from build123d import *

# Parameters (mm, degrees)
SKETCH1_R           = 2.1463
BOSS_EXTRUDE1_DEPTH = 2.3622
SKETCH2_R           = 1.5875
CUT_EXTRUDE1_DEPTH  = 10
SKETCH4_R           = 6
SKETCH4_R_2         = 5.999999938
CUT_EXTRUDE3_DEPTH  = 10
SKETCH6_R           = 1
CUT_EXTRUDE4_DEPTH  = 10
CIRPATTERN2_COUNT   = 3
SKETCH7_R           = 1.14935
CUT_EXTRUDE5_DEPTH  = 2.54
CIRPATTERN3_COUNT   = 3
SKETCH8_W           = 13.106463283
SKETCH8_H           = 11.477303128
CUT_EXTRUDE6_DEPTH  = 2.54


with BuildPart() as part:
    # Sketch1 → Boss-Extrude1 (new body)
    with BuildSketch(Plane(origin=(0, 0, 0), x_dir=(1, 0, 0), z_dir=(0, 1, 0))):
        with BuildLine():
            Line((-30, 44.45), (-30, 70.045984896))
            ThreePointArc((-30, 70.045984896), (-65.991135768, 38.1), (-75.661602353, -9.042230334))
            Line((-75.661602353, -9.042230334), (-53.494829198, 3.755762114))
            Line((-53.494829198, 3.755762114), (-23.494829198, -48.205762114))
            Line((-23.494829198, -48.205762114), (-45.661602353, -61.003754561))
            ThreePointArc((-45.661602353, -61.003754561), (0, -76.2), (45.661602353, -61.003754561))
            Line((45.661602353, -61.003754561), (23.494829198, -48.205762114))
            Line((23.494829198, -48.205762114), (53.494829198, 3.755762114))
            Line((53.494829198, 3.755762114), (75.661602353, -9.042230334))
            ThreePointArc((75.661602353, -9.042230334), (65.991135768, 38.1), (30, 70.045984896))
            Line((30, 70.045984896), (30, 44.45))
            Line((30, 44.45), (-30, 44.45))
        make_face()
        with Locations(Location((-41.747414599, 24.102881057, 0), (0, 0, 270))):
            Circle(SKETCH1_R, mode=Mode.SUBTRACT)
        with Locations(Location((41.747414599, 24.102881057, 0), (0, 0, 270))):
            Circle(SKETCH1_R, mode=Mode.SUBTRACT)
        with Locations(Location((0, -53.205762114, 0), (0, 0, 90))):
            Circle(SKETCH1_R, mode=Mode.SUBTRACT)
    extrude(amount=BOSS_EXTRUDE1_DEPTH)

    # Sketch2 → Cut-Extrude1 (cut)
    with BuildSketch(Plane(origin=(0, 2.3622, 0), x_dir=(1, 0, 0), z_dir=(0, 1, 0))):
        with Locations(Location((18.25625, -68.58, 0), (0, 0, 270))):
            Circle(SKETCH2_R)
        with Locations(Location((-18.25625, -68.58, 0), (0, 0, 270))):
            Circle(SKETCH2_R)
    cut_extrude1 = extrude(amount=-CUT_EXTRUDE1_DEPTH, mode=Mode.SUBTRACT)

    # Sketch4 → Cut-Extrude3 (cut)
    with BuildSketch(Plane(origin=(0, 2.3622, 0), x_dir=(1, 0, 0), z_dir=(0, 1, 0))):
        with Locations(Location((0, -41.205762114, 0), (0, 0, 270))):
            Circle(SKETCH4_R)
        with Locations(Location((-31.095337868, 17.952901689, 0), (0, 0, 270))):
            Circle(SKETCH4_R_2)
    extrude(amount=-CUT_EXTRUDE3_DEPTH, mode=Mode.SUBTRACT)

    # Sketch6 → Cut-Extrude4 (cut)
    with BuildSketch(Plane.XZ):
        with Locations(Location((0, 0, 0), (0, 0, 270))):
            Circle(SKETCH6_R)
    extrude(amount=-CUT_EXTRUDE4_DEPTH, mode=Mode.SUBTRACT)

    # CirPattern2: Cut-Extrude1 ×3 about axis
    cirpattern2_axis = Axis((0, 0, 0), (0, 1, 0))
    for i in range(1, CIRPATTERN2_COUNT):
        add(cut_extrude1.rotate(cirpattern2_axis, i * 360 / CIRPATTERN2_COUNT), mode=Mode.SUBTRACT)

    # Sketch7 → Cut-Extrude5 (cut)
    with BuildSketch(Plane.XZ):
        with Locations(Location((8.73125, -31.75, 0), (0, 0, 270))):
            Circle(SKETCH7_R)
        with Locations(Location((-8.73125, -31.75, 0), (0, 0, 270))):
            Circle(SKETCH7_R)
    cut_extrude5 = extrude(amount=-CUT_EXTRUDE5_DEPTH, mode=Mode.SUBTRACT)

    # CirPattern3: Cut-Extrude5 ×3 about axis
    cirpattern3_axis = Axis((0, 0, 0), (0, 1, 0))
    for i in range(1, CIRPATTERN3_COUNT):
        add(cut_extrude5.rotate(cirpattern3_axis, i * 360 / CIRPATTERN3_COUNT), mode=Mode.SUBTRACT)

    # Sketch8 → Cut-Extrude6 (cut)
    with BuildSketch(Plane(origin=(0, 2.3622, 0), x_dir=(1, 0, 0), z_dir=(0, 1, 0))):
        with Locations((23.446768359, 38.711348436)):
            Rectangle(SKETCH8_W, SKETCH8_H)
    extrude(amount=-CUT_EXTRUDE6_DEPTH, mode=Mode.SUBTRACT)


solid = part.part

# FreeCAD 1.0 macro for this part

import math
import FreeCAD as App
import Part
import Sketcher
from FreeCAD import Vector
Q = App.Units.Quantity

doc = App.newDocument("Part")
body = doc.addObject("PartDesign::Body", "Body")

sketch1 = body.newObject("Sketcher::SketchObject", "Sketch")
sketch1.AttachmentSupport = (doc.getObject("XZ_Plane"), [""])
sketch1.MapMode = "FlatFace"
sketch1.addGeometry([
    Part.LineSegment(Vector(-30, -44.5, 0), Vector(-30, -70, 0)),
    Part.ArcOfCircle(Part.Circle(Vector(0, 0, 0), Vector(0, 0, 1), 76.2), math.radians(173), math.radians(247)),
    Part.LineSegment(Vector(-75.7, 9, 0), Vector(-53.5, -3.8, 0)),
    Part.LineSegment(Vector(-53.5, -3.8, 0), Vector(-23.5, 48.2, 0)),
    Part.LineSegment(Vector(-23.5, 48.2, 0), Vector(-45.7, 61, 0)),
    Part.ArcOfCircle(Part.Circle(Vector(0, 0, 0), Vector(0, 0, 1), 76.2), math.radians(53), math.radians(127)),
    Part.LineSegment(Vector(45.7, 61, 0), Vector(23.5, 48.2, 0)),
    Part.LineSegment(Vector(23.5, 48.2, 0), Vector(53.5, -3.8, 0)),
    Part.LineSegment(Vector(53.5, -3.8, 0), Vector(75.7, 9, 0)),
    Part.ArcOfCircle(Part.Circle(Vector(0, 0, 0), Vector(0, 0, 1), 76.2), math.radians(-67), math.radians(7)),
    Part.LineSegment(Vector(30, -70, 0), Vector(30, -44.5, 0)),
    Part.LineSegment(Vector(30, -44.5, 0), Vector(-30, -44.5, 0)),
    Part.Circle(Vector(0, 53.2, 0), Vector(0, 0, 1), 2.1),
    Part.Circle(Vector(-41.7, -24.1, 0), Vector(0, 0, 1), 2.1),
    Part.Circle(Vector(41.7, -24.1, 0), Vector(0, 0, 1), 2.1),
], False)
sketch1.addConstraint([
    Sketcher.Constraint("Coincident", 0, 2, 1, 2),
    Sketcher.Constraint("Coincident", 1, 1, 2, 1),
    Sketcher.Constraint("Coincident", 2, 2, 3, 1),
    Sketcher.Constraint("Coincident", 3, 2, 4, 1),
    Sketcher.Constraint("Coincident", 4, 2, 5, 2),
    Sketcher.Constraint("Coincident", 5, 1, 6, 1),
    Sketcher.Constraint("Coincident", 6, 2, 7, 1),
    Sketcher.Constraint("Coincident", 7, 2, 8, 1),
    Sketcher.Constraint("Coincident", 8, 2, 9, 2),
    Sketcher.Constraint("Coincident", 9, 1, 10, 1),
    Sketcher.Constraint("Coincident", 10, 2, 11, 1),
    Sketcher.Constraint("Coincident", 11, 2, 0, 1),
    Sketcher.Constraint("Vertical", 0),
    Sketcher.Constraint("Vertical", 10),
    Sketcher.Constraint("Horizontal", 11),
    Sketcher.Constraint("Coincident", 1, 3, -1, 1),
    Sketcher.Constraint("Coincident", 5, 3, -1, 1),
    Sketcher.Constraint("Coincident", 9, 3, -1, 1),
    Sketcher.Constraint("Equal", 1, 5),
    Sketcher.Constraint("Equal", 5, 9),
    Sketcher.Constraint("Equal", 12, 13),
    Sketcher.Constraint("Equal", 13, 14),
    Sketcher.Constraint("Symmetric", 13, 3, 14, 3, -2),
    Sketcher.Constraint("Symmetric", 3, 2, 6, 2, -2),
    Sketcher.Constraint("Symmetric", 2, 2, 7, 2, -2),
    Sketcher.Constraint("PointOnObject", 12, 3, -2),
    Sketcher.Constraint("Perpendicular", 2, 3),
    Sketcher.Constraint("Perpendicular", 3, 4),
    Sketcher.Constraint("Perpendicular", 6, 7),
    Sketcher.Constraint("Perpendicular", 7, 8),
    Sketcher.Constraint("Horizontal", 0, 2, 9, 1),
    Sketcher.Constraint("Equal", 2, 4),
    Sketcher.Constraint("Radius", 1, Q("3 in")),
    Sketcher.Constraint("Diameter", 12, Q("0.169 in")),
    Sketcher.Constraint("Angle", 2, Q("-30 deg")),
    Sketcher.Constraint("DistanceY", 10, 2, -1, 1, Q("1.75 in")),
    Sketcher.Constraint("DistanceX", 11, 2, 11, 1, Q("60 mm")),
    Sketcher.Constraint("Distance", 3, Q("60 mm")),
    Sketcher.Constraint("DistanceY", 3, 2, 12, 3, Q("5 mm")),
    Sketcher.Constraint("DistanceY", 13, 3, -1, 1, Q("24.102881 mm")),
    Sketcher.Constraint("DistanceX", 2, 2, -1, 1, Q("53.494829 mm")),
    Sketcher.Constraint("DistanceX", 13, 3, 14, 3, Q("83.494829 mm")),
])
pad1 = body.newObject("PartDesign::Pad", "Pad")
pad1.Profile = sketch1
pad1.Length = Q("0.093 in")
pad1.Reversed = True

sketch2 = body.newObject("Sketcher::SketchObject", "Sketch001")
sketch2.AttachmentSupport = (doc.getObject("XZ_Plane"), [""])
sketch2.MapMode = "FlatFace"
sketch2.AttachmentOffset = App.Placement(Vector(0, 0, -0.093 * 25.4), App.Rotation())
sketch2.addGeometry([
    Part.Circle(Vector(18.3, 68.6, 0), Vector(0, 0, 1), 1.6),
    Part.Circle(Vector(-18.3, 68.6, 0), Vector(0, 0, 1), 1.6),
], False)
sketch2.addConstraint([
    Sketcher.Constraint("Equal", 0, 1),
    Sketcher.Constraint("Symmetric", 0, 3, 1, 3, -2),
    Sketcher.Constraint("Diameter", 0, Q("0.125 in")),
    Sketcher.Constraint("DistanceY", -1, 1, 0, 3, Q("2.7 in")),
    Sketcher.Constraint("DistanceX", -1, 1, 0, 3, Q("0.71875 in")),
])
pocket1 = body.newObject("PartDesign::Pocket", "Pocket")
pocket1.Profile = sketch2
pocket1.Length = 10
pocket1.Reversed = True

sketch3 = body.newObject("Sketcher::SketchObject", "Sketch002")
sketch3.AttachmentSupport = (doc.getObject("XZ_Plane"), [""])
sketch3.MapMode = "FlatFace"
sketch3.AttachmentOffset = App.Placement(Vector(0, 0, -0.093 * 25.4), App.Rotation())
sketch3.addGeometry([
    Part.Circle(Vector(0, 41, 0), Vector(0, 0, 1), 6),
    Part.Circle(Vector(-31, -18, 0), Vector(0, 0, 1), 6),
], False)
sketch3.addConstraint([
    Sketcher.Constraint("Equal", 0, 1),
    Sketcher.Constraint("PointOnObject", 0, 3, -2),
    Sketcher.Constraint("Diameter", 0, Q("12 mm")),
    Sketcher.Constraint("DistanceY", 1, 3, -1, 1, Q("17.952902 mm")),
    Sketcher.Constraint("DistanceY", -1, 1, 0, 3, Q("41.205762 mm")),
    Sketcher.Constraint("DistanceX", 1, 3, -1, 1, Q("31.095338 mm")),
])
pocket2 = body.newObject("PartDesign::Pocket", "Pocket001")
pocket2.Profile = sketch3
pocket2.Length = 10
pocket2.Reversed = True

sketch4 = body.newObject("Sketcher::SketchObject", "Sketch003")
sketch4.AttachmentSupport = (doc.getObject("XZ_Plane"), [""])
sketch4.MapMode = "FlatFace"
sketch4.addGeometry(Part.Circle(Vector(0, 0, 0), Vector(0, 0, 1), 1), False)
sketch4.addConstraint([
    Sketcher.Constraint("Coincident", 0, 3, -1, 1),
    Sketcher.Constraint("Diameter", 0, Q("2 mm")),
])
pocket3 = body.newObject("PartDesign::Pocket", "Pocket002")
pocket3.Profile = sketch4
pocket3.Length = 10
doc.recompute()

polarpattern = body.newObject("PartDesign::PolarPattern", "PolarPattern")
polarpattern.Originals = [pocket1]
polarpattern.Axis = (doc.getObject("Y_Axis"), [""])
polarpattern.Angle = 360
polarpattern.Occurrences = 3
body.Tip = polarpattern

sketch5 = body.newObject("Sketcher::SketchObject", "Sketch004")
sketch5.AttachmentSupport = (doc.getObject("XZ_Plane"), [""])
sketch5.MapMode = "FlatFace"
sketch5.addGeometry([
    Part.Circle(Vector(8.7, -31.8, 0), Vector(0, 0, 1), 1.1),
    Part.Circle(Vector(-8.7, -31.8, 0), Vector(0, 0, 1), 1.1),
], False)
sketch5.addConstraint([
    Sketcher.Constraint("Equal", 0, 1),
    Sketcher.Constraint("Symmetric", 0, 3, 1, 3, -2),
    Sketcher.Constraint("Diameter", 0, Q("0.0905 in")),
    Sketcher.Constraint("DistanceY", 0, 3, -1, 1, Q("1.25 in")),
    Sketcher.Constraint("DistanceX", -1, 1, 0, 3, Q("0.34375 in")),
])
pocket4 = body.newObject("PartDesign::Pocket", "Pocket003")
pocket4.Profile = sketch5
pocket4.Length = Q("0.1 in")
doc.recompute()

polarpattern2 = body.newObject("PartDesign::PolarPattern", "PolarPattern001")
polarpattern2.Originals = [pocket4]
polarpattern2.Axis = (doc.getObject("Y_Axis"), [""])
polarpattern2.Angle = 360
polarpattern2.Occurrences = 3
body.Tip = polarpattern2

sketch6 = body.newObject("Sketcher::SketchObject", "Sketch005")
sketch6.AttachmentSupport = (doc.getObject("XZ_Plane"), [""])
sketch6.MapMode = "FlatFace"
sketch6.AttachmentOffset = App.Placement(Vector(0, 0, -0.093 * 25.4), App.Rotation())
sketch6.addGeometry([
    Part.LineSegment(Vector(17, -44, 0), Vector(17, -33, 0)),
    Part.LineSegment(Vector(17, -33, 0), Vector(30, -33, 0)),
    Part.LineSegment(Vector(30, -33, 0), Vector(30, -44, 0)),
    Part.LineSegment(Vector(30, -44, 0), Vector(17, -44, 0)),
], False)
sketch6.addConstraint([
    Sketcher.Constraint("Coincident", 0, 2, 1, 1),
    Sketcher.Constraint("Coincident", 1, 2, 2, 1),
    Sketcher.Constraint("Coincident", 2, 2, 3, 1),
    Sketcher.Constraint("Coincident", 3, 2, 0, 1),
    Sketcher.Constraint("Vertical", 0),
    Sketcher.Constraint("Horizontal", 1),
    Sketcher.Constraint("Vertical", 2),
    Sketcher.Constraint("Horizontal", 3),
    Sketcher.Constraint("DistanceY", 2, 2, -1, 1, Q("1.75 in")),
    Sketcher.Constraint("DistanceX", -1, 1, 0, 2, Q("0.6650999 in")),
    Sketcher.Constraint("DistanceX", -1, 1, 1, 2, Q("30 mm")),
    Sketcher.Constraint("DistanceY", 0, 1, 0, 2, Q("11.477303 mm")),
])
pocket5 = body.newObject("PartDesign::Pocket", "Pocket004")
pocket5.Profile = sketch6
pocket5.Length = Q("0.1 in")
pocket5.Reversed = True

doc.recompute()
